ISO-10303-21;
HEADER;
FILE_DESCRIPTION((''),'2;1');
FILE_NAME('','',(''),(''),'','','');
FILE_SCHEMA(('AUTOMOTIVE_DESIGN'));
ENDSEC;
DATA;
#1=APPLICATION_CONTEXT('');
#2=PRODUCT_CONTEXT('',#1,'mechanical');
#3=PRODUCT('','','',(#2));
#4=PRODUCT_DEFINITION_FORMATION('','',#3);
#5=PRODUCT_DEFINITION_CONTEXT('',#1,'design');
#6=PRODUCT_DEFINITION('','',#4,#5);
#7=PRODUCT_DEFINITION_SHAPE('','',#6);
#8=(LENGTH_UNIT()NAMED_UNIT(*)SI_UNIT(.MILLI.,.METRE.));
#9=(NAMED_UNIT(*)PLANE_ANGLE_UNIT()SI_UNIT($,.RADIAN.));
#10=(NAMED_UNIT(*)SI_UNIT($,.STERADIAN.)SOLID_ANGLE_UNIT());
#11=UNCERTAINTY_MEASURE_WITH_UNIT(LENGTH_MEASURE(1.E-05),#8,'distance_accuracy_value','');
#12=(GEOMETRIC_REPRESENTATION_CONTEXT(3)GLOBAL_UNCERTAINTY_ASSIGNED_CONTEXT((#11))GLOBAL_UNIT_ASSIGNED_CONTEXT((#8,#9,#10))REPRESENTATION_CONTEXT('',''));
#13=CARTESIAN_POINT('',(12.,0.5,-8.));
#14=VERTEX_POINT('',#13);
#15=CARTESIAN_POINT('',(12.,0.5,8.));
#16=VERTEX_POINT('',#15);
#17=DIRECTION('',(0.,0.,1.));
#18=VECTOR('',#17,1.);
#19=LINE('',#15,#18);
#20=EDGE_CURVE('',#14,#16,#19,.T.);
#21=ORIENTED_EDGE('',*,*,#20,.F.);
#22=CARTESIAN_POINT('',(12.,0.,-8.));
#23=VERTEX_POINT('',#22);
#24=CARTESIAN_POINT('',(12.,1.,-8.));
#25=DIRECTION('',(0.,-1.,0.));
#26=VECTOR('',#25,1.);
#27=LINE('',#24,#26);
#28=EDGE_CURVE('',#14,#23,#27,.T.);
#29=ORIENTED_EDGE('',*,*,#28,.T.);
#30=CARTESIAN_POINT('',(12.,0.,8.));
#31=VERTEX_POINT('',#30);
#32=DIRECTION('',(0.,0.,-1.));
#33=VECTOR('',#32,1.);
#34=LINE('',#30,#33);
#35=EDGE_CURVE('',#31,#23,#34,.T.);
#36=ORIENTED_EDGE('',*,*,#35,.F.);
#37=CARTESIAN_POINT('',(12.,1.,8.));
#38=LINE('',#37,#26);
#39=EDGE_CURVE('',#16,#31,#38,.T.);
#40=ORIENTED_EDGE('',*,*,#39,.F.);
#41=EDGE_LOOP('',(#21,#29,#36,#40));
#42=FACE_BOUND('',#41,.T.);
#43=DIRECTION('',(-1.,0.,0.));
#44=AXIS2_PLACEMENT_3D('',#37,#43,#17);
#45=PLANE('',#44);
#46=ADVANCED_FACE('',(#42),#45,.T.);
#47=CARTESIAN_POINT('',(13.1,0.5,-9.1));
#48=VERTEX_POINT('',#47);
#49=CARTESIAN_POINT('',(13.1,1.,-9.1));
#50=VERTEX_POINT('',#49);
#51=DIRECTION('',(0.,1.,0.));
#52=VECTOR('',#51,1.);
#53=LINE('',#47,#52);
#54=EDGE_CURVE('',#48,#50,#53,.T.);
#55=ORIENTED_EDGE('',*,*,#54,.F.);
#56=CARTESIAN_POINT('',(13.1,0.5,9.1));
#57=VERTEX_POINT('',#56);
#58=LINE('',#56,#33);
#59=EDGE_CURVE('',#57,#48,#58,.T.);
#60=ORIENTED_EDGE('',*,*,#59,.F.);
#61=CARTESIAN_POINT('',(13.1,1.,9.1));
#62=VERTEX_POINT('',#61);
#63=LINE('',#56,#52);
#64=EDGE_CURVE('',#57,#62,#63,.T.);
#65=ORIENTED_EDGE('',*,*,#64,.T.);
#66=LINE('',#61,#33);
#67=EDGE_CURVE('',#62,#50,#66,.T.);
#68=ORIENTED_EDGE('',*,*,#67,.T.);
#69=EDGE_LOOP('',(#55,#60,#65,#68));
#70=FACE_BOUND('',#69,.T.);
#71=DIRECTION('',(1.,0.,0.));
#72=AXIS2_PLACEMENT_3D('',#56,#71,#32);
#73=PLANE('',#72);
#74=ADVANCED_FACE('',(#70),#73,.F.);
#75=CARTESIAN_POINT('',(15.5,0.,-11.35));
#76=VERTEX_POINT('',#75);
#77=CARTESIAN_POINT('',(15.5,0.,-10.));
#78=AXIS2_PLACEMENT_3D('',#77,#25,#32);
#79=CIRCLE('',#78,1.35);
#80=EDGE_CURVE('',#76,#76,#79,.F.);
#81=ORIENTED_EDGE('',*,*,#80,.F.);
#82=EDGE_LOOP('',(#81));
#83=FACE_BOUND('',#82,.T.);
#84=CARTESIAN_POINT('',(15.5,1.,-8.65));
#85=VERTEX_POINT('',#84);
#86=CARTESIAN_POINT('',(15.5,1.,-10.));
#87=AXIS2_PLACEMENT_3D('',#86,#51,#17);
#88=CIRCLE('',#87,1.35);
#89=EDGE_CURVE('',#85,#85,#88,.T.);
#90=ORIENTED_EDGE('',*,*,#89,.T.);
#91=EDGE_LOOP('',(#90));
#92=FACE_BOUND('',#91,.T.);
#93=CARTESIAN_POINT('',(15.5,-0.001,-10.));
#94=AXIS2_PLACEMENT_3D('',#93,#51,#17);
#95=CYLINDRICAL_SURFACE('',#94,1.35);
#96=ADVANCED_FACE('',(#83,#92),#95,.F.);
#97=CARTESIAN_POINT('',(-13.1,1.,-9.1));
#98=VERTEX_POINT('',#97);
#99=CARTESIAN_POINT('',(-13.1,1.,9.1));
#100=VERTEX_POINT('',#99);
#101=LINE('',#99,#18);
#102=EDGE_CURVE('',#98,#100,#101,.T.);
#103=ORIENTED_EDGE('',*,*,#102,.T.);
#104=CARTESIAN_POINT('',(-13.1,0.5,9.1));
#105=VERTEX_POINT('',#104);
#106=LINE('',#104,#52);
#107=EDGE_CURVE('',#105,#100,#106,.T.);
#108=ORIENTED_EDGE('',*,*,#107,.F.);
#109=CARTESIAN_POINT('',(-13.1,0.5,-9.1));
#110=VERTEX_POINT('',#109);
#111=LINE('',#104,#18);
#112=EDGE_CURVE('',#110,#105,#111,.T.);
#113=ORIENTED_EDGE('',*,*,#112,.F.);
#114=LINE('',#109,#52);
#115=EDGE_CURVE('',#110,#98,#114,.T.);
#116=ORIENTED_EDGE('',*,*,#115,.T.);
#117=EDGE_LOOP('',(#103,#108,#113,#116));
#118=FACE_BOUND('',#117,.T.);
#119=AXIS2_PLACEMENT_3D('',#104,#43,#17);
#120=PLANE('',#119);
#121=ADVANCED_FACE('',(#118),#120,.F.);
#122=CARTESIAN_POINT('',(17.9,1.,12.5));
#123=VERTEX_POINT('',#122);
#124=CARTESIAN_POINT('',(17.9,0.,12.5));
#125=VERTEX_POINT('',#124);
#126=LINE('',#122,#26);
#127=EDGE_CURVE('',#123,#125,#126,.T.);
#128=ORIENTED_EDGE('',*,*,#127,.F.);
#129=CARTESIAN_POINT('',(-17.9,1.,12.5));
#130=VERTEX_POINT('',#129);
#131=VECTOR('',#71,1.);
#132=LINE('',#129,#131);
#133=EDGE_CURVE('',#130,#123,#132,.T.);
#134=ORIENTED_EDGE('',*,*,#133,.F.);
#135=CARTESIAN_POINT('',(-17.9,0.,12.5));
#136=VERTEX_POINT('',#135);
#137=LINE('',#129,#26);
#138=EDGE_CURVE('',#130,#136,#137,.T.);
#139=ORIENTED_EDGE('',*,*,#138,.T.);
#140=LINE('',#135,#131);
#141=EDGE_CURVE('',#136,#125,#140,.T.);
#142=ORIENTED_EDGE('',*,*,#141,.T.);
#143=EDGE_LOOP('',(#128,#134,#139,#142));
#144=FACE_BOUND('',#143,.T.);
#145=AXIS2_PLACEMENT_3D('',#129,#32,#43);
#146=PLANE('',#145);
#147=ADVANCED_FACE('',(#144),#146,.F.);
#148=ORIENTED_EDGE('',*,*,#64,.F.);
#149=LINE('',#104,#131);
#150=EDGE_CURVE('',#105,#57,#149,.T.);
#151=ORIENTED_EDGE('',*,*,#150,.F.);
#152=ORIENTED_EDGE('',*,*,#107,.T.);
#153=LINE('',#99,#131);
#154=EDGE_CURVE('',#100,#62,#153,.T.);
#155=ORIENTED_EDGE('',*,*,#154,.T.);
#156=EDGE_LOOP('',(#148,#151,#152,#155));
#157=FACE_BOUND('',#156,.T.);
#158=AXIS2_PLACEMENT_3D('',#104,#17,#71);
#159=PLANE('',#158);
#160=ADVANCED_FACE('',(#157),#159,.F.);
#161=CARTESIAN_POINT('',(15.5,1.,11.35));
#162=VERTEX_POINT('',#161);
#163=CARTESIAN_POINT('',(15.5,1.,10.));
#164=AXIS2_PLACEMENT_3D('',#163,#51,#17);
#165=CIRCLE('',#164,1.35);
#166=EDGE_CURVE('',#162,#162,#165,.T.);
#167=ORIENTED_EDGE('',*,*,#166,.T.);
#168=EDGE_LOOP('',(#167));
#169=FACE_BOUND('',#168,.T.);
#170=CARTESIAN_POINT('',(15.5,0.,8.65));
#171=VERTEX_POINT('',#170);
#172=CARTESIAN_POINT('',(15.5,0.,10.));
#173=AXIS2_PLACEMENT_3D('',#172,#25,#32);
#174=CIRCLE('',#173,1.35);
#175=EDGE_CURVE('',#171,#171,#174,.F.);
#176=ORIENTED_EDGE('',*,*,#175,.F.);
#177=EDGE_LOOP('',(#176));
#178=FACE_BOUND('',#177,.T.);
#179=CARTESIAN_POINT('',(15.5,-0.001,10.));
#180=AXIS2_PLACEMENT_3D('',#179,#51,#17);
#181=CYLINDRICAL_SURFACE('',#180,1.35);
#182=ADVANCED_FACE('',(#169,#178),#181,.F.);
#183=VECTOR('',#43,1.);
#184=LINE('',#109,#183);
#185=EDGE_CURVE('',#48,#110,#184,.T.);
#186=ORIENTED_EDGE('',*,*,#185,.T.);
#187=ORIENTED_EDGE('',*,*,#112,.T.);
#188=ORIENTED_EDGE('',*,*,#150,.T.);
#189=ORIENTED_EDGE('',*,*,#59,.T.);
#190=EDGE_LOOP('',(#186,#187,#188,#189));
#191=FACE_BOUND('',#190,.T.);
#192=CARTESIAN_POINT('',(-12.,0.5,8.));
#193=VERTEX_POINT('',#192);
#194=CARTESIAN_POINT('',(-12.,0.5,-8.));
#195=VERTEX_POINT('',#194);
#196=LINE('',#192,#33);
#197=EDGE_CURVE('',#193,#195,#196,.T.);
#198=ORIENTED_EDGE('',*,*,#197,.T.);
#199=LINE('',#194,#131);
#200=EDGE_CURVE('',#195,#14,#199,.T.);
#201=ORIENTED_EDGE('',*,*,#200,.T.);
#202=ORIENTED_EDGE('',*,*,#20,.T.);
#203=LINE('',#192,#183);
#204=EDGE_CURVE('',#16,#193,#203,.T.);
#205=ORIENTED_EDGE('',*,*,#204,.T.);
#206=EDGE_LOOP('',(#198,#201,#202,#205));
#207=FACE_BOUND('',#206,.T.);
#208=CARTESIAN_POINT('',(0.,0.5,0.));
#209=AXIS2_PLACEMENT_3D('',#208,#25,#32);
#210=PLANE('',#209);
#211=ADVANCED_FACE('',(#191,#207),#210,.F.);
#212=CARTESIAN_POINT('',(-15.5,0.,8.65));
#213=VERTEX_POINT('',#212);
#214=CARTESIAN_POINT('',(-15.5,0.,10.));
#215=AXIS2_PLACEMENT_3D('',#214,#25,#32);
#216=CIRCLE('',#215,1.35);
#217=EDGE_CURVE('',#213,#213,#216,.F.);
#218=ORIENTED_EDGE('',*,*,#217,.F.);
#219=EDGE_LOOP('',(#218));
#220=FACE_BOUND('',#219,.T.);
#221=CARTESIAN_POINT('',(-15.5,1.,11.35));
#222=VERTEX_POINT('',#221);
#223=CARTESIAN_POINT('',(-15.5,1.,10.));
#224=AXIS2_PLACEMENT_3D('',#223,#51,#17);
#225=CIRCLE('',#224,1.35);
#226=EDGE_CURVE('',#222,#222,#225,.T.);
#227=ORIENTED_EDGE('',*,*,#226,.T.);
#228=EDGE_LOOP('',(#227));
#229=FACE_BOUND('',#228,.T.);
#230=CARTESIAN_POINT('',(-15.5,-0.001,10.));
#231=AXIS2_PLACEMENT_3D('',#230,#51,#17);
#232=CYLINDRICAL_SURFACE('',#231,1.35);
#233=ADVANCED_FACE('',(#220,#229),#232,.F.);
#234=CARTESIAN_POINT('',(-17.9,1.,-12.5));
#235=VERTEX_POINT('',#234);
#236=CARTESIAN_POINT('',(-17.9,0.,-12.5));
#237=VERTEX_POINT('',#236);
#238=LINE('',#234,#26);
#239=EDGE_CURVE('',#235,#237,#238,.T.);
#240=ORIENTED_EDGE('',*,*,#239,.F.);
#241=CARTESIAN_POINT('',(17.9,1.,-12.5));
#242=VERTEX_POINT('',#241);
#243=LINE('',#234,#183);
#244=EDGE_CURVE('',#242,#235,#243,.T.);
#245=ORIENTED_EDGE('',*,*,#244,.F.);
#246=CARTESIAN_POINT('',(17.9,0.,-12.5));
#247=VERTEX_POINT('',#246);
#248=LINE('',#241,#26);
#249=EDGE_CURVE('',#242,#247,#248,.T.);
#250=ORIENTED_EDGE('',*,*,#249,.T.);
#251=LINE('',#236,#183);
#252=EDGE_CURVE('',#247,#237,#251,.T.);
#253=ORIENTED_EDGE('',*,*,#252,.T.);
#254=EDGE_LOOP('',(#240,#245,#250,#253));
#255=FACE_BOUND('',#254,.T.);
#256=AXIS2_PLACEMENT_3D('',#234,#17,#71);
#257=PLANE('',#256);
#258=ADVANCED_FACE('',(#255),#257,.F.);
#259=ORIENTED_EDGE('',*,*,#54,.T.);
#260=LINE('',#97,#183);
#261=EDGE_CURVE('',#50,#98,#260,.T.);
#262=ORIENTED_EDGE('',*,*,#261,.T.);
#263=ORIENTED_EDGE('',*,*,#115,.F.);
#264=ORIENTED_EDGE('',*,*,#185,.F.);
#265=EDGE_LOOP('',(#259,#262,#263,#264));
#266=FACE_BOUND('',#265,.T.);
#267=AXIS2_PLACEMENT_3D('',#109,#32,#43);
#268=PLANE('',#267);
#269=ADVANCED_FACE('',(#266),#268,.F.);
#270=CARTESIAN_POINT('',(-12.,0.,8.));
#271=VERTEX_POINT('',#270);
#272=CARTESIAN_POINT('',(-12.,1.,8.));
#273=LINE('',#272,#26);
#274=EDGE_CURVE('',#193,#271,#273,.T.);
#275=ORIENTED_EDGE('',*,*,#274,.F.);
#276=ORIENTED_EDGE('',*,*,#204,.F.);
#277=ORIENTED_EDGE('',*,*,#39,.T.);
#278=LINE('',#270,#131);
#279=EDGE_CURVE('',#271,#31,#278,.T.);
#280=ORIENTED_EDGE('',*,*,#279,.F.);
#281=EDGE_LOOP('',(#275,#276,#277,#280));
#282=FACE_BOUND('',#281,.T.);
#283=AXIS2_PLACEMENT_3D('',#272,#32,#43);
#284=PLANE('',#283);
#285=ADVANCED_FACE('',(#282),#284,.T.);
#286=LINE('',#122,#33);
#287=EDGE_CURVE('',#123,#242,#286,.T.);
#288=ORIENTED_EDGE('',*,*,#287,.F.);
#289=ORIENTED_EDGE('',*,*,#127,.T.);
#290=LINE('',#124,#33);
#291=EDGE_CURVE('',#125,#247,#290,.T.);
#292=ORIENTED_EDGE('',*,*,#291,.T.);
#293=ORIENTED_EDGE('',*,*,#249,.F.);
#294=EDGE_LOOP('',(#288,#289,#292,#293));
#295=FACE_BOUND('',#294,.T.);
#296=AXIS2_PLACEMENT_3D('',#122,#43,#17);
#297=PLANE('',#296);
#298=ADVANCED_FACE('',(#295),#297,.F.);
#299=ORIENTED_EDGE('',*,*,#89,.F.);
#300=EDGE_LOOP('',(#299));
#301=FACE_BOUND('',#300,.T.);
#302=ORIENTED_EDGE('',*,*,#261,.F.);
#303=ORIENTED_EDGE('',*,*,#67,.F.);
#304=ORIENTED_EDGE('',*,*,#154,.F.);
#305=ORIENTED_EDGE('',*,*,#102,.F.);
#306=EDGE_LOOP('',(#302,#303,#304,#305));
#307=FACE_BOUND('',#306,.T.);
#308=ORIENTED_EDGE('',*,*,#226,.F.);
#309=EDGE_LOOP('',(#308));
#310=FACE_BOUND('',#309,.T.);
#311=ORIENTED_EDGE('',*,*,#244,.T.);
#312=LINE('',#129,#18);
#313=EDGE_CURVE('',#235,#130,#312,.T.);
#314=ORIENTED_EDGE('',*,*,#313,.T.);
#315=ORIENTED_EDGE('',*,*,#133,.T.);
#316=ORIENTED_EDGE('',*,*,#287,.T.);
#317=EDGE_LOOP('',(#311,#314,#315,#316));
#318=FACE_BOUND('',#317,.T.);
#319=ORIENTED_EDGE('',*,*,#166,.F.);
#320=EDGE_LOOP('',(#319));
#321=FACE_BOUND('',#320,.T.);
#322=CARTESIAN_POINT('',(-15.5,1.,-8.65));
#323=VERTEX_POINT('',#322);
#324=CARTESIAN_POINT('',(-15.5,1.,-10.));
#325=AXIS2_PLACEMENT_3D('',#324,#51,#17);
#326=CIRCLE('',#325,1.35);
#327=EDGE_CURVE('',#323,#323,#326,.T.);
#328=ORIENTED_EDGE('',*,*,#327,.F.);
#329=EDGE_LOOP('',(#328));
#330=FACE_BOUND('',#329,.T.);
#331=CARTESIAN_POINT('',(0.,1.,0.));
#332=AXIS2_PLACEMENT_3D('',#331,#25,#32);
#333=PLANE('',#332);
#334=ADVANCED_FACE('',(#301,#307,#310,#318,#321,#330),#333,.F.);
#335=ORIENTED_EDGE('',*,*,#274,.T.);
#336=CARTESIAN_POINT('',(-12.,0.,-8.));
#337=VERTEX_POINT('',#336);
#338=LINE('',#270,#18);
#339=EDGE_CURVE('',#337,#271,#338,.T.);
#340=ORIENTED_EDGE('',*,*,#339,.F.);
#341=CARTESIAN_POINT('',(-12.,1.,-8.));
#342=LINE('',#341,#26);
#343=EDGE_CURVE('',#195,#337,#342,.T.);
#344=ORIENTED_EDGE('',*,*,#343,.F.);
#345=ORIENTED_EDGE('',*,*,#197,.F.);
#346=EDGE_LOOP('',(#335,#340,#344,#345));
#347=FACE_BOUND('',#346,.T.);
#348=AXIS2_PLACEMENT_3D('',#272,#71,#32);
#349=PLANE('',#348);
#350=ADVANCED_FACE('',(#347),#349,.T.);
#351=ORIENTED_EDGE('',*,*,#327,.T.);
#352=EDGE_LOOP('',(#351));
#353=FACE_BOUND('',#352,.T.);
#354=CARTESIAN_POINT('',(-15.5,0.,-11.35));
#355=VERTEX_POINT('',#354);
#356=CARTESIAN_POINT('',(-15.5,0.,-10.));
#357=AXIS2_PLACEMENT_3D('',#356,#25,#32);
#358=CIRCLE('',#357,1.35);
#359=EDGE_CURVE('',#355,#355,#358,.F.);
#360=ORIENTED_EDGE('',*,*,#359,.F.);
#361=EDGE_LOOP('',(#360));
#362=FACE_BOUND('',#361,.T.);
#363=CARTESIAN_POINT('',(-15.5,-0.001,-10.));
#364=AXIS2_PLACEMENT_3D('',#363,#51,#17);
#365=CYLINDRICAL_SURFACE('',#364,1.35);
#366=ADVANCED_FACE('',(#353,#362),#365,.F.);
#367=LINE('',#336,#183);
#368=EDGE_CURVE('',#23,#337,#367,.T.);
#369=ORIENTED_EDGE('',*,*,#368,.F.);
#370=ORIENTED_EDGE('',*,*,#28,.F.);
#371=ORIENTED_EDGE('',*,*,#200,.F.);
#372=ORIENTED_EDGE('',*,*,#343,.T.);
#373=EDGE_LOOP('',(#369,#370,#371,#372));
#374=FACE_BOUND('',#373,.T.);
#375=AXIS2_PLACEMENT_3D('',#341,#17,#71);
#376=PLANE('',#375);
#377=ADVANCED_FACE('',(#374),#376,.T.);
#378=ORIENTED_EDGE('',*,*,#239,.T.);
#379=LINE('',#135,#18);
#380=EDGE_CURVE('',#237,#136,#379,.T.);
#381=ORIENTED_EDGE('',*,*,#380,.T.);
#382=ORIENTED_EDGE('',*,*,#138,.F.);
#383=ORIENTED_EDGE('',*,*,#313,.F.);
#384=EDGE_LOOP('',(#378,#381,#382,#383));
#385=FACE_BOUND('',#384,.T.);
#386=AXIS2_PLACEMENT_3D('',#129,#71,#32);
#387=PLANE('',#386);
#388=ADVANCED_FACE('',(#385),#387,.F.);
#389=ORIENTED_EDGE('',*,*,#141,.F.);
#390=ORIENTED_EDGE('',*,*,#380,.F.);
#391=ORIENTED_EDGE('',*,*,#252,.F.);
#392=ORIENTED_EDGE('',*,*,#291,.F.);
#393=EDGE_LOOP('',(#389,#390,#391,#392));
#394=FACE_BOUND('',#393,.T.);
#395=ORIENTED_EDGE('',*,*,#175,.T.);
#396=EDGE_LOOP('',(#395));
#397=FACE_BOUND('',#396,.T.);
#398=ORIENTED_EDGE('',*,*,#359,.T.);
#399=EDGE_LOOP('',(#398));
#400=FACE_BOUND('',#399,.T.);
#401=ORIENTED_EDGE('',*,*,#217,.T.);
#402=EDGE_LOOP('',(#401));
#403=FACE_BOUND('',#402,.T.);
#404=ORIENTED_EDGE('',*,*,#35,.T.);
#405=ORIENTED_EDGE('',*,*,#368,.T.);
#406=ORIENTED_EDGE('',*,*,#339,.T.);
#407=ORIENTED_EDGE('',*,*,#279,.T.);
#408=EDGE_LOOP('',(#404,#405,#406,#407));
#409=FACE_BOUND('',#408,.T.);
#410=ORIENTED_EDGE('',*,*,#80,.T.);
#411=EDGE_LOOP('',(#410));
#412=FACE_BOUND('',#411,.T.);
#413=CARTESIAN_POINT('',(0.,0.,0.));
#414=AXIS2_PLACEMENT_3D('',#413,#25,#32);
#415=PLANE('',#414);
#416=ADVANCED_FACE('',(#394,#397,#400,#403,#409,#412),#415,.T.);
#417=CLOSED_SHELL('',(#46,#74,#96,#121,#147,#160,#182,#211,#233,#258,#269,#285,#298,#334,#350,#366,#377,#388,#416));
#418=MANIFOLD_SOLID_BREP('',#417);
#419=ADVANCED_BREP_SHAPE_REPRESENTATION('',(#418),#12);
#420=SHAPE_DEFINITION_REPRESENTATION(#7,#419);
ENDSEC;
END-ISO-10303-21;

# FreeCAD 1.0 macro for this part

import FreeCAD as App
import Part
import Sketcher

V = App.Vector
Q = App.Units.Quantity

doc = App.newDocument("Part")
params = doc.addObject("Spreadsheet::Sheet", "Params")
for row, (alias, value) in enumerate([
    ("sketch1_width", "24 mm"),
    ("sketch1_height", "25 mm"),
    ("sketch1_height2", "16 mm"),
    ("sketch1_width2", "35.8 mm"),
    ("pad1_length", "1 mm"),
    ("sketch2_width", "26.2 mm"),
    ("sketch2_height", "18.2 mm"),
    ("pocket1_length", "0.5 mm"),
    ("sketch3_diameter", "2.7 mm"),
    ("sketch4_diameter", "2.7 mm"),
    ("sketch5_diameter", "2.7 mm"),
    ("sketch6_diameter", "2.7 mm"),
], start=1):
    params.set(f"A{row}", alias)
    params.set(f"B{row}", "=" + value)
    params.setAlias(f"B{row}", alias)

body = doc.addObject("PartDesign::Body", "Body")

# Sketch on XZ plane
sketch1 = body.newObject("Sketcher::SketchObject", "Sketch")
sketch1.AttachmentSupport = (doc.getObject("XZ_Plane"), [""])
sketch1.MapMode = "FlatFace"
sketch1.addGeometry([
    Part.LineSegment(V(-18, -12, 0), V(-18, 12, 0)),  # 0
    Part.LineSegment(V(-18, 12, 0), V(18, 12, 0)),  # 1
    Part.LineSegment(V(18, 12, 0), V(18, -12, 0)),  # 2
    Part.LineSegment(V(18, -12, 0), V(-18, -12, 0)),  # 3
    Part.LineSegment(V(12, 8, 0), V(-12, 8, 0)),  # 4
    Part.LineSegment(V(-12, 8, 0), V(-12, -8, 0)),  # 5
    Part.LineSegment(V(-12, -8, 0), V(12, -8, 0)),  # 6
    Part.LineSegment(V(12, -8, 0), V(12, 8, 0)),  # 7
], False)
sketch1.addConstraint([
    Sketcher.Constraint("Coincident", 0, 2, 1, 1),
    Sketcher.Constraint("Coincident", 1, 2, 2, 1),
    Sketcher.Constraint("Coincident", 2, 2, 3, 1),
    Sketcher.Constraint("Coincident", 3, 2, 0, 1),
    Sketcher.Constraint("Coincident", 4, 2, 5, 1),
    Sketcher.Constraint("Coincident", 5, 2, 6, 1),
    Sketcher.Constraint("Coincident", 6, 2, 7, 1),
    Sketcher.Constraint("Coincident", 7, 2, 4, 1),
    Sketcher.Constraint("Vertical", 0),
    Sketcher.Constraint("Horizontal", 1),
    Sketcher.Constraint("Vertical", 2),
    Sketcher.Constraint("Horizontal", 3),
    Sketcher.Constraint("Horizontal", 4),
    Sketcher.Constraint("Vertical", 5),
    Sketcher.Constraint("Horizontal", 6),
    Sketcher.Constraint("Vertical", 7),
    Sketcher.Constraint("Symmetric", 0, 2, 2, 2, -1, 1),
    Sketcher.Constraint("Symmetric", 4, 2, 6, 2, -1, 1),
    Sketcher.Constraint("DistanceX", 4, 2, 4, 1, Q("24 mm")),
    Sketcher.Constraint("DistanceY", 0, 1, 0, 2, Q("25 mm")),
    Sketcher.Constraint("DistanceY", 5, 2, 5, 1, Q("16 mm")),
    Sketcher.Constraint("DistanceX", 1, 1, 1, 2, Q("35.8 mm")),
])
sketch1.setExpression("Constraints[18]", "Params.sketch1_width")
sketch1.setExpression("Constraints[19]", "Params.sketch1_height")
sketch1.setExpression("Constraints[20]", "Params.sketch1_height2")
sketch1.setExpression("Constraints[21]", "Params.sketch1_width2")
pad1 = body.newObject("PartDesign::Pad", "Pad")
pad1.Profile = sketch1
pad1.setExpression("Length", "Params.pad1_length")
pad1.Reversed = True

# Sketch on XZ plane
sketch2 = body.newObject("Sketcher::SketchObject", "Sketch001")
sketch2.AttachmentSupport = (doc.getObject("XZ_Plane"), [""])
sketch2.MapMode = "FlatFace"
sketch2.AttachmentOffset = App.Placement(V(0, 0, -1), App.Rotation())
sketch2.addGeometry([
    Part.LineSegment(V(-13, -9, 0), V(-13, 9, 0)),
    Part.LineSegment(V(-13, 9, 0), V(13, 9, 0)),
    Part.LineSegment(V(13, 9, 0), V(13, -9, 0)),
    Part.LineSegment(V(13, -9, 0), V(-13, -9, 0)),
], False)
sketch2.addConstraint([
    Sketcher.Constraint("Coincident", 0, 2, 1, 1),
    Sketcher.Constraint("Coincident", 1, 2, 2, 1),
    Sketcher.Constraint("Coincident", 2, 2, 3, 1),
    Sketcher.Constraint("Coincident", 3, 2, 0, 1),
    Sketcher.Constraint("Vertical", 0),
    Sketcher.Constraint("Horizontal", 1),
    Sketcher.Constraint("Vertical", 2),
    Sketcher.Constraint("Horizontal", 3),
    Sketcher.Constraint("Symmetric", 0, 2, 2, 2, -1, 1),
    Sketcher.Constraint("DistanceX", 1, 1, 1, 2, Q("26.2 mm")),
    Sketcher.Constraint("DistanceY", 0, 1, 0, 2, Q("18.2 mm")),
])
sketch2.setExpression("Constraints[9]", "Params.sketch2_width")
sketch2.setExpression("Constraints[10]", "Params.sketch2_height")
pocket1 = body.newObject("PartDesign::Pocket", "Pocket")
pocket1.Profile = sketch2
pocket1.setExpression("Length", "Params.pocket1_length")
pocket1.Reversed = True

# Sketch on XZ plane
sketch3 = body.newObject("Sketcher::SketchObject", "Sketch002")
sketch3.AttachmentSupport = (doc.getObject("XZ_Plane"), [""])
sketch3.MapMode = "FlatFace"
sketch3.AttachmentOffset = App.Placement(V(0, 0, -1), App.Rotation())
sketch3.addGeometry(Part.Circle(V(-15.5, -10, 0), V(0, 0, 1), 1.4), False)
sketch3.addConstraint([
    Sketcher.Constraint("Diameter", 0, Q("2.7 mm")),
    Sketcher.Constraint("DistanceY", 0, 3, -1, 1, Q("10 mm")),
    Sketcher.Constraint("DistanceX", 0, 3, -1, 1, Q("15.5 mm")),
])
sketch3.setExpression("Constraints[0]", "Params.sketch3_diameter")
pocket2 = body.newObject("PartDesign::Pocket", "Pocket001")
pocket2.Profile = sketch3
pocket2.Type = "UpToFirst"
pocket2.Reversed = True

# Sketch on XZ plane
sketch4 = body.newObject("Sketcher::SketchObject", "Sketch003")
sketch4.AttachmentSupport = (doc.getObject("XZ_Plane"), [""])
sketch4.MapMode = "FlatFace"
sketch4.AttachmentOffset = App.Placement(V(0, 0, -1), App.Rotation())
sketch4.addGeometry(Part.Circle(V(-15.5, 10, 0), V(0, 0, 1), 1.4), False)
sketch4.addConstraint([
    Sketcher.Constraint("Diameter", 0, Q("2.7 mm")),
    Sketcher.Constraint("DistanceY", -1, 1, 0, 3, Q("10 mm")),
    Sketcher.Constraint("DistanceX", 0, 3, -1, 1, Q("15.5 mm")),
])
sketch4.setExpression("Constraints[0]", "Params.sketch4_diameter")
pocket3 = body.newObject("PartDesign::Pocket", "Pocket002")
pocket3.Profile = sketch4
pocket3.Type = "UpToFirst"
pocket3.Reversed = True

# Sketch on XZ plane
sketch5 = body.newObject("Sketcher::SketchObject", "Sketch004")
sketch5.AttachmentSupport = (doc.getObject("XZ_Plane"), [""])
sketch5.MapMode = "FlatFace"
sketch5.AttachmentOffset = App.Placement(V(0, 0, -1), App.Rotation())
sketch5.addGeometry(Part.Circle(V(15.5, 10, 0), V(0, 0, 1), 1.4), False)
sketch5.addConstraint([
    Sketcher.Constraint("Diameter", 0, Q("2.7 mm")),
    Sketcher.Constraint("DistanceY", -1, 1, 0, 3, Q("10 mm")),
    Sketcher.Constraint("DistanceX", -1, 1, 0, 3, Q("15.5 mm")),
])
sketch5.setExpression("Constraints[0]", "Params.sketch5_diameter")
pocket4 = body.newObject("PartDesign::Pocket", "Pocket003")
pocket4.Profile = sketch5
pocket4.Type = "UpToFirst"
pocket4.Reversed = True

# Sketch on XZ plane
sketch6 = body.newObject("Sketcher::SketchObject", "Sketch005")
sketch6.AttachmentSupport = (doc.getObject("XZ_Plane"), [""])
sketch6.MapMode = "FlatFace"
sketch6.AttachmentOffset = App.Placement(V(0, 0, -1), App.Rotation())
sketch6.addGeometry(Part.Circle(V(15.5, -10, 0), V(0, 0, 1), 1.4), False)
sketch6.addConstraint([
    Sketcher.Constraint("Diameter", 0, Q("2.7 mm")),
    Sketcher.Constraint("DistanceY", 0, 3, -1, 1, Q("10 mm")),
    Sketcher.Constraint("DistanceX", -1, 1, 0, 3, Q("15.5 mm")),
])
sketch6.setExpression("Constraints[0]", "Params.sketch6_diameter")
pocket5 = body.newObject("PartDesign::Pocket", "Pocket004")
pocket5.Profile = sketch6
pocket5.Type = "UpToFirst"
pocket5.Reversed = True

doc.recompute()
